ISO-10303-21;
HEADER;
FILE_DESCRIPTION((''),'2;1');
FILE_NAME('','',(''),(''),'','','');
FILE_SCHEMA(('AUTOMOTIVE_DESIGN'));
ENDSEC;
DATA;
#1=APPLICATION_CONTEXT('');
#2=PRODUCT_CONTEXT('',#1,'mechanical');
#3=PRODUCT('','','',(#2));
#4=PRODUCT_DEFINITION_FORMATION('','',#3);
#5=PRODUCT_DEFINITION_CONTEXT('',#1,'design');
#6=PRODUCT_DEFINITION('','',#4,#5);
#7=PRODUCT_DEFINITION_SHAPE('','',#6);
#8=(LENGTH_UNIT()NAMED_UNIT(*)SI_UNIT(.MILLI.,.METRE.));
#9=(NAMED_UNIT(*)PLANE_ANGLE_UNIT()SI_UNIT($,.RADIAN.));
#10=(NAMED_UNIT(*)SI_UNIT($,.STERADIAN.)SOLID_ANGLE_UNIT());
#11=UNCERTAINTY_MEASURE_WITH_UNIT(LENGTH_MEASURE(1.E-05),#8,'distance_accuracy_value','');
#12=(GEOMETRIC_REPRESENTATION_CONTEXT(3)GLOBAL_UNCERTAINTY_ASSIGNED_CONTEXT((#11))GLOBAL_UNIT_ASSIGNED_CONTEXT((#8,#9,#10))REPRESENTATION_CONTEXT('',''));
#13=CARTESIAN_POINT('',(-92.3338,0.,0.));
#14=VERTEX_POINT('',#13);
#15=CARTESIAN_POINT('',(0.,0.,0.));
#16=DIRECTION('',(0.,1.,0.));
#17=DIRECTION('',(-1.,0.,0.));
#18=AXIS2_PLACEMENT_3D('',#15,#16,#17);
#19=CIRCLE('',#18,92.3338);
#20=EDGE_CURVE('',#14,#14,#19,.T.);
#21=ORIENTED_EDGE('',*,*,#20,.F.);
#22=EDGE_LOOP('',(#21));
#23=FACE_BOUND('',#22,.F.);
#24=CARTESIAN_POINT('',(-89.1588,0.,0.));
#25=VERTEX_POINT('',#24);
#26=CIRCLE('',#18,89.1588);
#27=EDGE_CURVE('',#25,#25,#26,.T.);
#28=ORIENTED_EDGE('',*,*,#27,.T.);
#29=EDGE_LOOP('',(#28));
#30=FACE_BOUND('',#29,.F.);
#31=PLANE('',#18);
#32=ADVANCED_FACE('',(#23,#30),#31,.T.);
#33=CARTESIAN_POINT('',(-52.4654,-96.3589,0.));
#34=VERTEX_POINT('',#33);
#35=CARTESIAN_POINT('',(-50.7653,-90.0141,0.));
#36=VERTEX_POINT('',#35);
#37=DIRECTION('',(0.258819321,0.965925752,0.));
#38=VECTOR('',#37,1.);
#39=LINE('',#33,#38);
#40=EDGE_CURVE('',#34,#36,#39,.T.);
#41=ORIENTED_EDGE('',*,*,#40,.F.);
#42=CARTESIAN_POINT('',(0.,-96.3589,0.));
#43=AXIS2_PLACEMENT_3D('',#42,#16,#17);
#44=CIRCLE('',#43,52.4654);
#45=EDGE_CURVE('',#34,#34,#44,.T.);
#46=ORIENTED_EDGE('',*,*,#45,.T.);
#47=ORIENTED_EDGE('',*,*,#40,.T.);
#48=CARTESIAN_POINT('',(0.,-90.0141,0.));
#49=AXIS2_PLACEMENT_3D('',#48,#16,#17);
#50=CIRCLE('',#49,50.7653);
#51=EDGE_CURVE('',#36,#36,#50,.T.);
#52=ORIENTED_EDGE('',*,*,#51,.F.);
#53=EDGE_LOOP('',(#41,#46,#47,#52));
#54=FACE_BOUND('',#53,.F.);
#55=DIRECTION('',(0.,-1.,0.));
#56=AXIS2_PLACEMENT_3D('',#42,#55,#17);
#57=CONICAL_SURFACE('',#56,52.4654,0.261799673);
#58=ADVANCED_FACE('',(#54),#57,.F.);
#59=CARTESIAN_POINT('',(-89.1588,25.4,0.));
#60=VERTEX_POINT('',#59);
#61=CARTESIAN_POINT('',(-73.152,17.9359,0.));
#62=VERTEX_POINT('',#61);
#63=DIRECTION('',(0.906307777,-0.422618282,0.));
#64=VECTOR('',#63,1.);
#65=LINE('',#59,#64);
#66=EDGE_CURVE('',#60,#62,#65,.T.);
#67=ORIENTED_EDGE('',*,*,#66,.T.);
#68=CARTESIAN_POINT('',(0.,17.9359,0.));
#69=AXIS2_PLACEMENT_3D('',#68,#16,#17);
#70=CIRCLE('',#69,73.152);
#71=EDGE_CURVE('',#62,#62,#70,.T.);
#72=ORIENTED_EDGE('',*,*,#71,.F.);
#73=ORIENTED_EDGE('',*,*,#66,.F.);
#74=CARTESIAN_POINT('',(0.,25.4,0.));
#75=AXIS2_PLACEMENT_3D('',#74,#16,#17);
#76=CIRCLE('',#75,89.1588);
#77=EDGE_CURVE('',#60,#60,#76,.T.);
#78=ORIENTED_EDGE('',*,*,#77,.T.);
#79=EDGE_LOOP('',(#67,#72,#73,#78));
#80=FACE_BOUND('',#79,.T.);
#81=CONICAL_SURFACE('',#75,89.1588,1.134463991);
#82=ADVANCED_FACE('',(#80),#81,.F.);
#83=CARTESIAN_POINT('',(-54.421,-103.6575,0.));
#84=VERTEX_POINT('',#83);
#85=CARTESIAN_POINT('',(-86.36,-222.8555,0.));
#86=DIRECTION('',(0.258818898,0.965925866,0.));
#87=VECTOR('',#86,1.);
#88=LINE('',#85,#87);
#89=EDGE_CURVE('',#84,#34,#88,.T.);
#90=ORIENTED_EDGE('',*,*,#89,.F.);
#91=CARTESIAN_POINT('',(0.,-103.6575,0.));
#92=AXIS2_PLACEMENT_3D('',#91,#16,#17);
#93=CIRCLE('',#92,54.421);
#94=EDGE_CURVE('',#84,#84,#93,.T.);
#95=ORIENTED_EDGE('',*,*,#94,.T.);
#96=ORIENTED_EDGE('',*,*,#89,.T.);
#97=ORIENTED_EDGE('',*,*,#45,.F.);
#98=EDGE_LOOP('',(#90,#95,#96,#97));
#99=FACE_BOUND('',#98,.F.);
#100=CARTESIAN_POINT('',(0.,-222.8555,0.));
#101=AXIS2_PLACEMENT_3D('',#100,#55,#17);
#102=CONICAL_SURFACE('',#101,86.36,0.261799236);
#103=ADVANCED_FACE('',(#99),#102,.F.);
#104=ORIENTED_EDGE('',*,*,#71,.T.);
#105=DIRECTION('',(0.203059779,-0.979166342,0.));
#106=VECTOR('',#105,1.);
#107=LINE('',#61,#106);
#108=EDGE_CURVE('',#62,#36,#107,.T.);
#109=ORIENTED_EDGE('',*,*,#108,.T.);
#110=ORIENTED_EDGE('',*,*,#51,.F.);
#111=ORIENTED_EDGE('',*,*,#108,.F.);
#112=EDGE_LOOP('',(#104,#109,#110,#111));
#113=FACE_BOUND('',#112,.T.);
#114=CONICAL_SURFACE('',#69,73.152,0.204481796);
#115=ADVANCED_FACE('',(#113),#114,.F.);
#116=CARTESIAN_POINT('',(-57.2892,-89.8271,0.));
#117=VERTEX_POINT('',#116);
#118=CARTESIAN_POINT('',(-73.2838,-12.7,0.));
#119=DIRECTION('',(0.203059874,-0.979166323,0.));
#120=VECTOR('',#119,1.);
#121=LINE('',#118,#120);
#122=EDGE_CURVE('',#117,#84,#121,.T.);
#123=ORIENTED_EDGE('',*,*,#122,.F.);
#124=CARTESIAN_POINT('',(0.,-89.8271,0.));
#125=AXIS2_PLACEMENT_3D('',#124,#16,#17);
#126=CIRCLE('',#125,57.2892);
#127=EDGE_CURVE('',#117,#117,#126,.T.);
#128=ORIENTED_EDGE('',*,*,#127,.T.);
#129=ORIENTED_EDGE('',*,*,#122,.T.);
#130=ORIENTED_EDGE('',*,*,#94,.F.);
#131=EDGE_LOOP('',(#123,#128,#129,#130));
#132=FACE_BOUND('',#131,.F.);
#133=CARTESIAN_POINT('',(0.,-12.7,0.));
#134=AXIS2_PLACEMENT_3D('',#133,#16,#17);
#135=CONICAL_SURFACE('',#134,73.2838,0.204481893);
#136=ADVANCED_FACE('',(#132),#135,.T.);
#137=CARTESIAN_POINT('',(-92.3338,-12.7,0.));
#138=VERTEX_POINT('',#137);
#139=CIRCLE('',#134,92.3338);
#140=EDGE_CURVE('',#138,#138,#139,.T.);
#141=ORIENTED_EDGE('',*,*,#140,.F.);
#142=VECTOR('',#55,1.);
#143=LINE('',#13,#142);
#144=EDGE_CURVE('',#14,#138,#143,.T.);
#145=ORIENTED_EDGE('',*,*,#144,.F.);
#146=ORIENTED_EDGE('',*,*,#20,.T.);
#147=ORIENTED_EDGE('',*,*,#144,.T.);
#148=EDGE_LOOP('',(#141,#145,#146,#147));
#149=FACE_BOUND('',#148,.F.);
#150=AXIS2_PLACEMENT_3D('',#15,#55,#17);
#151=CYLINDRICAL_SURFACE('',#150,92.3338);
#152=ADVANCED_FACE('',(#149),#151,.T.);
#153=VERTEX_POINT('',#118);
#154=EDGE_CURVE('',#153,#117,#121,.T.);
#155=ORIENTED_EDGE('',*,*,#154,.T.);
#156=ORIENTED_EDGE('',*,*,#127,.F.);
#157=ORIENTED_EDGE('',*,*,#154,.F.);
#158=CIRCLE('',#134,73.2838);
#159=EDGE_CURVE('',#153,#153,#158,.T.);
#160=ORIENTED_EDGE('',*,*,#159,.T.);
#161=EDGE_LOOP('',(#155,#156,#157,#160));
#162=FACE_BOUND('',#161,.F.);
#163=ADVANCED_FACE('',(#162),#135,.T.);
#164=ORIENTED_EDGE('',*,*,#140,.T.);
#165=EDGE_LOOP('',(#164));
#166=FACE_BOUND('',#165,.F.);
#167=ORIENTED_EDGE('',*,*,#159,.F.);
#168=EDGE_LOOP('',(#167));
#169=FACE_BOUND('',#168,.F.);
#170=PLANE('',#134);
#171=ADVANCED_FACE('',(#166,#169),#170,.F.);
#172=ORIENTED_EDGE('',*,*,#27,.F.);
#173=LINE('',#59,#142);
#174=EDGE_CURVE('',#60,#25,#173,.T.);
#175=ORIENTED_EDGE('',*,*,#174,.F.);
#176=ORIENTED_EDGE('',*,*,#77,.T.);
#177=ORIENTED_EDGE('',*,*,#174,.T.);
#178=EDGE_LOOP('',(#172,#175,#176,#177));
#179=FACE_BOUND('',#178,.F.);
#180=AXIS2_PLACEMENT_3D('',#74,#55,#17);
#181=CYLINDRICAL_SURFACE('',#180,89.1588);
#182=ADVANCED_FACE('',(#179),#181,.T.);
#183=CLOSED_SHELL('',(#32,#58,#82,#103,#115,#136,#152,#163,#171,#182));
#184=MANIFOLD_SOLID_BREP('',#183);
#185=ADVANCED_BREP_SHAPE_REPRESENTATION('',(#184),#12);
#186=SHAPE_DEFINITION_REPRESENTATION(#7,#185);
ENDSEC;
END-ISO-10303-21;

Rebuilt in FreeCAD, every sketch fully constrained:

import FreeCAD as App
import Part
import Sketcher
from FreeCAD import Vector
Q = App.Units.Quantity

doc = App.newDocument("Part")
body = doc.addObject("PartDesign::Body", "Body")

sketch1 = doc.addObject("Sketcher::SketchObject", "Sketch")
body.addObject(sketch1)
sketch1.AttachmentSupport = (doc.XY_Plane, [""])
sketch1.MapMode = "FlatFace"
sketch1.addGeometry([
    Part.LineSegment(Vector(-89.2, 25.4, 0), Vector(-89.2, 0, 0)),
    Part.LineSegment(Vector(-89.2, 0, 0), Vector(-92.3, 0, 0)),
    Part.LineSegment(Vector(-92.3, 0, 0), Vector(-92.3, -12.7, 0)),
    Part.LineSegment(Vector(-92.3, -12.7, 0), Vector(-73.3, -12.7, 0)),
    Part.LineSegment(Vector(-73.3, -12.7, 0), Vector(-54.4, -103.7, 0)),
    Part.LineSegment(Vector(-54.4, -103.7, 0), Vector(-52.5, -96.4, 0)),
    Part.LineSegment(Vector(-52.5, -96.4, 0), Vector(-50.8, -90, 0)),
    Part.LineSegment(Vector(-50.8, -90, 0), Vector(-73.2, 17.9, 0)),
    Part.LineSegment(Vector(-73.2, 17.9, 0), Vector(-89.2, 25.4, 0)),
], False)
sketch1.addConstraint([
    Sketcher.Constraint("Coincident", 0, 2, 1, 1),
    Sketcher.Constraint("Coincident", 1, 2, 2, 1),
    Sketcher.Constraint("Coincident", 2, 2, 3, 1),
    Sketcher.Constraint("Coincident", 3, 2, 4, 1),
    Sketcher.Constraint("Coincident", 4, 2, 5, 1),
    Sketcher.Constraint("Coincident", 5, 2, 6, 1),
    Sketcher.Constraint("Coincident", 6, 2, 7, 1),
    Sketcher.Constraint("Coincident", 7, 2, 8, 1),
    Sketcher.Constraint("Coincident", 8, 2, 0, 1),
    Sketcher.Constraint("Vertical", 0),
    Sketcher.Constraint("Horizontal", 1),
    Sketcher.Constraint("Vertical", 2),
    Sketcher.Constraint("Horizontal", 3),
    Sketcher.Constraint("PointOnObject", 0, 2, -1),
    Sketcher.Constraint("Parallel", 5, 6),
    Sketcher.Constraint("Parallel", 4, 7),
    Sketcher.Constraint("DistanceY", 0, 2, 0, 1, Q("1 in")),
    Sketcher.Constraint("DistanceY", 2, 2, 2, 1, Q("0.5 in")),
    Sketcher.Constraint("DistanceX", 3, 1, 3, 2, Q("0.75 in")),
    Sketcher.Constraint("DistanceX", 1, 2, 1, 1, Q("0.125 in")),
    Sketcher.Constraint("DistanceY", 6, 2, 7, 2, Q("4.25 in")),
    Sketcher.Constraint("Angle", 5, Q("75 deg")),
    Sketcher.Constraint("Angle", 8, Q("155 deg")),
    Sketcher.Constraint("DistanceX", 7, 2, -1, 1, Q("2.88 in")),
    Sketcher.Constraint("DistanceY", 4, 2, -1, 1, Q("4.081 in")),
    Sketcher.Constraint("DistanceX", 4, 2, 5, 2, Q("0.077 in")),
    Sketcher.Constraint("Distance", 4, Q("3.6572 in")),
])
revolution = doc.addObject("PartDesign::Revolution", "Revolution")
body.addObject(revolution)
revolution.Profile = sketch1
revolution.ReferenceAxis = (sketch1, ["V_Axis"])
revolution.Angle = 360

doc.recompute()
